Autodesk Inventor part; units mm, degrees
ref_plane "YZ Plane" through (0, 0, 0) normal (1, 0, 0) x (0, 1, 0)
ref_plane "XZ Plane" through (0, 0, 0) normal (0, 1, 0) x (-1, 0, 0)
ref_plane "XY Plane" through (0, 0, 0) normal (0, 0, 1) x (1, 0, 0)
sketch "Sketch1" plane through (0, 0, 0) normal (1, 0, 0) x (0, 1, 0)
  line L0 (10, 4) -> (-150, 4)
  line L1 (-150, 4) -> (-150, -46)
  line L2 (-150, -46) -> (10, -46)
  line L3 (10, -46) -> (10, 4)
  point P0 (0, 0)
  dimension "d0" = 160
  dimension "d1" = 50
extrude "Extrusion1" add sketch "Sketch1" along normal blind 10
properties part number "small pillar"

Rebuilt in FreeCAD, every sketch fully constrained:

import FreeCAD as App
import Part
import Sketcher
from FreeCAD import Vector


def add_polygon(sketch, points):
    """Adds a closed chain of lines whose ends are joined by coincident constraints."""
    first, n = sketch.GeometryCount, len(points)
    for a, b in zip(points, points[1:] + points[:1]):
        sketch.addGeometry(Part.LineSegment(App.Vector(*a, 0), App.Vector(*b, 0)), False)
    for i in range(n):
        sketch.addConstraint(Sketcher.Constraint("Coincident", first + i, 2, first + (i + 1) % n, 1))

doc = App.newDocument("Part")
body = doc.addObject("PartDesign::Body", "Body")

# Sketch on YZ plane
sketch1 = doc.addObject("Sketcher::SketchObject", "Sketch")
body.addObject(sketch1)
sketch1.AttachmentSupport = (doc.YZ_Plane, [""])
sketch1.MapMode = "FlatFace"
add_polygon(sketch1, [(10, -46), (10, 4), (-150, 4), (-150, -46)])  # lines 0-3
sketch1.addConstraint(Sketcher.Constraint("Vertical", 0))
sketch1.addConstraint(Sketcher.Constraint("Horizontal", 1))
sketch1.addConstraint(Sketcher.Constraint("Vertical", 2))
sketch1.addConstraint(Sketcher.Constraint("Horizontal", 3))
sketch1.addConstraint(Sketcher.Constraint("DistanceX", 1, 2, 1, 1, 160.0))
sketch1.addConstraint(Sketcher.Constraint("DistanceY", 0, 1, 0, 2, 50.0))
sketch1.addConstraint(Sketcher.Constraint("DistanceX", -1, 1, 0, 2, 10.0))
sketch1.addConstraint(Sketcher.Constraint("DistanceY", -1, 1, 0, 2, 4.0))
pad1 = doc.addObject("PartDesign::Pad", "Pad")
body.addObject(pad1)
pad1.Profile = sketch1
pad1.Length = 10

doc.recompute()
